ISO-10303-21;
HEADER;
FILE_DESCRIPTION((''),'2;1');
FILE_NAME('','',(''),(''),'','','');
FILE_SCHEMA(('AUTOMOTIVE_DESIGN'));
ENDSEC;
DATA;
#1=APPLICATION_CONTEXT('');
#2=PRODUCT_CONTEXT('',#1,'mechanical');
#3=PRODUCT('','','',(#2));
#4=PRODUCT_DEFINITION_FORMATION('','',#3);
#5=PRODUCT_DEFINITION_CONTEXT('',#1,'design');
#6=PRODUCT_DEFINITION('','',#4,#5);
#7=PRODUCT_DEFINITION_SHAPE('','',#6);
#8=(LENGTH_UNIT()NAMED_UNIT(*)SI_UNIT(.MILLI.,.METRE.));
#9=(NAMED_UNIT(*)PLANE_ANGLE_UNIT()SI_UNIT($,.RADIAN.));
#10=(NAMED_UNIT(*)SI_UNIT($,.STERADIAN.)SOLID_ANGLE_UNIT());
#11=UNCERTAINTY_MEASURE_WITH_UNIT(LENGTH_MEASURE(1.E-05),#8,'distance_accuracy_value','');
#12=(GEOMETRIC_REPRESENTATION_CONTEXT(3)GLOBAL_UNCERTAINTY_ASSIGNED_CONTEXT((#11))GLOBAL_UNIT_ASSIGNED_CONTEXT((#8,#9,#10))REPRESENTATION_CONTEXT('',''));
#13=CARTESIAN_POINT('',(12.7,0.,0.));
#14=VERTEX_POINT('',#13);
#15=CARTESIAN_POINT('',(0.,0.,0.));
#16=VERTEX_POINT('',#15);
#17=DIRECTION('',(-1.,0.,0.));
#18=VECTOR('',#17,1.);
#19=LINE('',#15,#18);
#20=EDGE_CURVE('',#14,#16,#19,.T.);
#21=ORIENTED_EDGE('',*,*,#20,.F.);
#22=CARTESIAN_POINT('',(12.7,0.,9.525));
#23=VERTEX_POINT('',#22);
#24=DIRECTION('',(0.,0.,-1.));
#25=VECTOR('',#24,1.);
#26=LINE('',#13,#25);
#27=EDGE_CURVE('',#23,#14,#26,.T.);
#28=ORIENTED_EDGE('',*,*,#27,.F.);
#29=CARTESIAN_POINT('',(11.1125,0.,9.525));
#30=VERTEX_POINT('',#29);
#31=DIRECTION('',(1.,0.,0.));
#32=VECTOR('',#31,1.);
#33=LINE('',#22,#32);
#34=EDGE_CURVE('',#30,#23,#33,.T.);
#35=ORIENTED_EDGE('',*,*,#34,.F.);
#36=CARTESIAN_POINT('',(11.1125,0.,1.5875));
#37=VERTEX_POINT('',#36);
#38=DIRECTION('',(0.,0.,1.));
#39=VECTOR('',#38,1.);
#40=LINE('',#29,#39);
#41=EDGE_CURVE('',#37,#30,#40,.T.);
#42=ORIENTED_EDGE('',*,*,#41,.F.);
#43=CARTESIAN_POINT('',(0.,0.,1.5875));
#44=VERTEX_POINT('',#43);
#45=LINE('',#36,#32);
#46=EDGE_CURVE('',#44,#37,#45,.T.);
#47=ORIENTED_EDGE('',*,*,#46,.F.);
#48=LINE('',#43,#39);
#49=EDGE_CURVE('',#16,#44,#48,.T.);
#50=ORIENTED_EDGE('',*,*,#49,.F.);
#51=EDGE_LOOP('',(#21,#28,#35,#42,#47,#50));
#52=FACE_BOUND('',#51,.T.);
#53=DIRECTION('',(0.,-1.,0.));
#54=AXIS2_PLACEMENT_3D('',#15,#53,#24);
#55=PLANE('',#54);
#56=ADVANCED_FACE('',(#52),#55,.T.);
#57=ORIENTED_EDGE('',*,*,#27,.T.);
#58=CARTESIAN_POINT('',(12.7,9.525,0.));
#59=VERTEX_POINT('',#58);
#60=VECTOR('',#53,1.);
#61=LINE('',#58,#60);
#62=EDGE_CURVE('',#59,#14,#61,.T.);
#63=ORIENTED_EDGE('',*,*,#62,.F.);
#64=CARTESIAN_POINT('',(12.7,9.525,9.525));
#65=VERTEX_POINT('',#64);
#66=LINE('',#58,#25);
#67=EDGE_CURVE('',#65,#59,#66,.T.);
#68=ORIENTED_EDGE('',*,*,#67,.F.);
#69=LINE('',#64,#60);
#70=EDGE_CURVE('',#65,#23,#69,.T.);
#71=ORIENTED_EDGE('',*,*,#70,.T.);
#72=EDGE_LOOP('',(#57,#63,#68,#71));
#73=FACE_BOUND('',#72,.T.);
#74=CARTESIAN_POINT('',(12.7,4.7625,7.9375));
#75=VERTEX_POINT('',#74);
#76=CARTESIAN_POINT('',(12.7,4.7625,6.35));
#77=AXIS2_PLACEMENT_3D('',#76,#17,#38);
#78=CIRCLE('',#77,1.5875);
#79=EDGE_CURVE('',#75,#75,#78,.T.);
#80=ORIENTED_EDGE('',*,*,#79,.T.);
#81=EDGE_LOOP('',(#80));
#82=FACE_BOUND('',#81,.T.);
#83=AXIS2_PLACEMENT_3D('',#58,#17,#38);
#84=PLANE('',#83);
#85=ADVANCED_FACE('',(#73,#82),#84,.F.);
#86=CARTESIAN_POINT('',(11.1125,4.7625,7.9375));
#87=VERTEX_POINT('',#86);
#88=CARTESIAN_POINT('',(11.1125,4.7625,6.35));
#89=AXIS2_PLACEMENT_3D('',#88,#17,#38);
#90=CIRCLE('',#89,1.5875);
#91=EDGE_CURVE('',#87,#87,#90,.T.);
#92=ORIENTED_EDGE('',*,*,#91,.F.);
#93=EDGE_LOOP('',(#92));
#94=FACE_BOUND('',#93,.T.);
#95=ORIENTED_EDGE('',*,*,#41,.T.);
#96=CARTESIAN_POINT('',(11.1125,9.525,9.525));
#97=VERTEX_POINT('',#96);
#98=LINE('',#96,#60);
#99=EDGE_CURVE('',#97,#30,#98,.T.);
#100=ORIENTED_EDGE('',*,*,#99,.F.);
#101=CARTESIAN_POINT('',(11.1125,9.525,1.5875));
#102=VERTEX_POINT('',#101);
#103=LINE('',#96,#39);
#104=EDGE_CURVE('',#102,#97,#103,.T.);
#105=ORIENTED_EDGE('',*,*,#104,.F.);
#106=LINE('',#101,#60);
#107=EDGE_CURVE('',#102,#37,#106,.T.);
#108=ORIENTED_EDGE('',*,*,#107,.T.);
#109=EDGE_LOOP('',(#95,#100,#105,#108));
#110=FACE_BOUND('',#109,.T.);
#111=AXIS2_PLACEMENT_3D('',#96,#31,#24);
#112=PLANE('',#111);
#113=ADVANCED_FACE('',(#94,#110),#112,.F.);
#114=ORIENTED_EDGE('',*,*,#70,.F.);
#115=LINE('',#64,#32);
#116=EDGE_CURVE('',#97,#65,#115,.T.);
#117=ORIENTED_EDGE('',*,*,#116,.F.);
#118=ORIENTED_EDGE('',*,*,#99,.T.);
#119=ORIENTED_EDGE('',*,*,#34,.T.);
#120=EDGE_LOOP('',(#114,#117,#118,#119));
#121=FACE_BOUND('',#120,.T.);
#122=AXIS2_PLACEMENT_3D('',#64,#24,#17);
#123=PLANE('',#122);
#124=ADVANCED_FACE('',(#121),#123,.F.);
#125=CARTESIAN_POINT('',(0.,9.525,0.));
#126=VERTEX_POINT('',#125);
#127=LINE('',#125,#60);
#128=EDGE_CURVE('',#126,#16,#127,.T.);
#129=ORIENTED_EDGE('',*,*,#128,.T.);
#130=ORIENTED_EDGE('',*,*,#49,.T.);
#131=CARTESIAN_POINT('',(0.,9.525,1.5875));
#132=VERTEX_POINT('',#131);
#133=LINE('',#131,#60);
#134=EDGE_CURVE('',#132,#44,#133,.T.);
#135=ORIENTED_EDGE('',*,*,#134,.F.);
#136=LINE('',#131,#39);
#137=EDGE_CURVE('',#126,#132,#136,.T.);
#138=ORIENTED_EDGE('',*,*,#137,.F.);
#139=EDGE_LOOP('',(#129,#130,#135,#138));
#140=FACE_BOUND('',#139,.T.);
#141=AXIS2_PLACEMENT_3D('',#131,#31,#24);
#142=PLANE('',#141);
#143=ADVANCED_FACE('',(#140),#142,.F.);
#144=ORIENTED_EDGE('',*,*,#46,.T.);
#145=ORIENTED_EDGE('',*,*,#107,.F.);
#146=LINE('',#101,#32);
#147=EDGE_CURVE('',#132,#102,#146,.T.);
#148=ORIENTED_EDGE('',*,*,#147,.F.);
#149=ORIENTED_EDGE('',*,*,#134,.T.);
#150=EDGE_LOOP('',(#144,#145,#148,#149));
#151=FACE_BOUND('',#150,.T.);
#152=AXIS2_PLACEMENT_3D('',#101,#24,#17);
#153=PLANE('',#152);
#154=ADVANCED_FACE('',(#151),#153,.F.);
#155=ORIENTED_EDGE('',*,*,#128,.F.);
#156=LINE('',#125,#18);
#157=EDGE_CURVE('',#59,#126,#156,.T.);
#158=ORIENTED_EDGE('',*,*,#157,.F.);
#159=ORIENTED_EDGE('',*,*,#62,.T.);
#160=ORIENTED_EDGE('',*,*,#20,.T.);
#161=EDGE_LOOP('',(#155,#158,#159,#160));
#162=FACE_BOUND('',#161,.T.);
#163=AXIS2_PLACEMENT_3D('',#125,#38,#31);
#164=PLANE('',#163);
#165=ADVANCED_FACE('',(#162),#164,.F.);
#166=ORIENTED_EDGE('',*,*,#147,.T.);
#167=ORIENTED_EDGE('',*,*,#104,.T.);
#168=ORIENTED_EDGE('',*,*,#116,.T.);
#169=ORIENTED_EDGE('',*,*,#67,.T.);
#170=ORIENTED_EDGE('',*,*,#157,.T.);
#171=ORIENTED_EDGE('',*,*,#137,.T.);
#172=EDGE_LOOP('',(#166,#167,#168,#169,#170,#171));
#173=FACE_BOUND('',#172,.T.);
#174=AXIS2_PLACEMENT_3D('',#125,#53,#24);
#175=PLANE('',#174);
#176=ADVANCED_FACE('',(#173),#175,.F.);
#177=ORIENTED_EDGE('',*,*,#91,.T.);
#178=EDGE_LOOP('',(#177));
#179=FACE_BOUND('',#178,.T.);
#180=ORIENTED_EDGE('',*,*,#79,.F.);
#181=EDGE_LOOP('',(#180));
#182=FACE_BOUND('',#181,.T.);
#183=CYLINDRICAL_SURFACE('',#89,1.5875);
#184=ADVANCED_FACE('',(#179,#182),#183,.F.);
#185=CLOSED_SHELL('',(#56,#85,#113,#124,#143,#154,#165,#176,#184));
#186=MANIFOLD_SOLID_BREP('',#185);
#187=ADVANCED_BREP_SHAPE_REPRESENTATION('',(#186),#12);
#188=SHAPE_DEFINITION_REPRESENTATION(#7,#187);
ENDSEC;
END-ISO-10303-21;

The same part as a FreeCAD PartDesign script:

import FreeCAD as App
import Part
import Sketcher
Q = App.Units.Quantity

doc = App.newDocument("Part")
params = doc.addObject("Spreadsheet::Sheet", "Params")
for row, (alias, value) in enumerate([
    ("sketch1_width", "0.5 in"),
    ("sketch1_width2", "0.4375 in"),
    ("sketch1_height", "0.3125 in"),
    ("pad1_length", "0.375 in"),
    ("sketch2_diameter", "0.125 in"),
    ("hole_diameter", "0.125 in"),
], start=1):
    params.set(f"A{row}", alias)
    params.set(f"B{row}", "=" + value)
    params.setAlias(f"B{row}", alias)

body = doc.addObject("PartDesign::Body", "Body")

# Sketch on XZ plane
sketch1 = body.newObject("Sketcher::SketchObject", "Sketch")
sketch1.AttachmentSupport = (doc.getObject("XZ_Plane"), [""])
sketch1.MapMode = "FlatFace"
sketch1.addGeometry(Part.LineSegment(App.Vector(12.7, 0, 0), App.Vector(0, 0, 0)), False)
sketch1.addGeometry(Part.LineSegment(App.Vector(0, 0, 0), App.Vector(0, 1.6, 0)), False)
sketch1.addGeometry(Part.LineSegment(App.Vector(0, 1.6, 0), App.Vector(11.1, 1.6, 0)), False)
sketch1.addGeometry(Part.LineSegment(App.Vector(11.1, 1.6, 0), App.Vector(11.1, 9.5, 0)), False)
sketch1.addGeometry(Part.LineSegment(App.Vector(11.1, 9.5, 0), App.Vector(12.7, 9.5, 0)), False)
sketch1.addGeometry(Part.LineSegment(App.Vector(12.7, 9.5, 0), App.Vector(12.7, 0, 0)), False)
sketch1.addConstraint(Sketcher.Constraint("Coincident", 0, 2, 1, 1))
sketch1.addConstraint(Sketcher.Constraint("Coincident", 1, 2, 2, 1))
sketch1.addConstraint(Sketcher.Constraint("Coincident", 2, 2, 3, 1))
sketch1.addConstraint(Sketcher.Constraint("Coincident", 3, 2, 4, 1))
sketch1.addConstraint(Sketcher.Constraint("Coincident", 4, 2, 5, 1))
sketch1.addConstraint(Sketcher.Constraint("Coincident", 5, 2, 0, 1))
sketch1.addConstraint(Sketcher.Constraint("Horizontal", 0))
sketch1.addConstraint(Sketcher.Constraint("Vertical", 1))
sketch1.addConstraint(Sketcher.Constraint("Horizontal", 2))
sketch1.addConstraint(Sketcher.Constraint("Vertical", 3))
sketch1.addConstraint(Sketcher.Constraint("Horizontal", 4))
sketch1.addConstraint(Sketcher.Constraint("Vertical", 5))
sketch1.addConstraint(Sketcher.Constraint("Coincident", 0, 2, -1, 1))
sketch1.addConstraint(Sketcher.Constraint("Equal", 4, 1))
sketch1.addConstraint(Sketcher.Constraint("DistanceX", 0, 2, 0, 1, Q("0.5 in")))
sketch1.addConstraint(Sketcher.Constraint("DistanceX", 2, 1, 2, 2, Q("0.4375 in")))
sketch1.addConstraint(Sketcher.Constraint("DistanceY", 3, 1, 3, 2, Q("0.3125 in")))
sketch1.setExpression("Constraints[14]", "Params.sketch1_width")
sketch1.setExpression("Constraints[15]", "Params.sketch1_width2")
sketch1.setExpression("Constraints[16]", "Params.sketch1_height")
pad1 = body.newObject("PartDesign::Pad", "Pad")
pad1.Profile = sketch1
pad1.setExpression("Length", "Params.pad1_length")
pad1.Reversed = True

# Sketch on YZ plane
sketch2 = body.newObject("Sketcher::SketchObject", "Sketch001")
sketch2.AttachmentSupport = (doc.getObject("YZ_Plane"), [""])
sketch2.MapMode = "FlatFace"
sketch2.AttachmentOffset = App.Placement(App.Vector(0, 0, 0.4375 * 25.4), App.Rotation())
sketch2.addGeometry(Part.Circle(App.Vector(4.8, 6.3, 0), App.Vector(0, 0, 1), 1.6), False)
sketch2.addConstraint(Sketcher.Constraint("Diameter", 0, Q("0.125 in")))
sketch2.addConstraint(Sketcher.Constraint("DistanceY", -1, 1, 0, 3, Q("0.25 in")))
sketch2.addConstraint(Sketcher.Constraint("DistanceX", -1, 1, 0, 3, Q("0.1875 in")))
sketch2.setExpression("Constraints[0]", "Params.sketch2_diameter")
doc.recompute()
hole = body.newObject("PartDesign::Hole", "Hole")
hole.Profile = sketch2
hole.ThreadType = "None"
hole.setExpression("Diameter", "Params.hole_diameter")
hole.DepthType = "ThroughAll"
hole.Reversed = True

doc.recompute()
